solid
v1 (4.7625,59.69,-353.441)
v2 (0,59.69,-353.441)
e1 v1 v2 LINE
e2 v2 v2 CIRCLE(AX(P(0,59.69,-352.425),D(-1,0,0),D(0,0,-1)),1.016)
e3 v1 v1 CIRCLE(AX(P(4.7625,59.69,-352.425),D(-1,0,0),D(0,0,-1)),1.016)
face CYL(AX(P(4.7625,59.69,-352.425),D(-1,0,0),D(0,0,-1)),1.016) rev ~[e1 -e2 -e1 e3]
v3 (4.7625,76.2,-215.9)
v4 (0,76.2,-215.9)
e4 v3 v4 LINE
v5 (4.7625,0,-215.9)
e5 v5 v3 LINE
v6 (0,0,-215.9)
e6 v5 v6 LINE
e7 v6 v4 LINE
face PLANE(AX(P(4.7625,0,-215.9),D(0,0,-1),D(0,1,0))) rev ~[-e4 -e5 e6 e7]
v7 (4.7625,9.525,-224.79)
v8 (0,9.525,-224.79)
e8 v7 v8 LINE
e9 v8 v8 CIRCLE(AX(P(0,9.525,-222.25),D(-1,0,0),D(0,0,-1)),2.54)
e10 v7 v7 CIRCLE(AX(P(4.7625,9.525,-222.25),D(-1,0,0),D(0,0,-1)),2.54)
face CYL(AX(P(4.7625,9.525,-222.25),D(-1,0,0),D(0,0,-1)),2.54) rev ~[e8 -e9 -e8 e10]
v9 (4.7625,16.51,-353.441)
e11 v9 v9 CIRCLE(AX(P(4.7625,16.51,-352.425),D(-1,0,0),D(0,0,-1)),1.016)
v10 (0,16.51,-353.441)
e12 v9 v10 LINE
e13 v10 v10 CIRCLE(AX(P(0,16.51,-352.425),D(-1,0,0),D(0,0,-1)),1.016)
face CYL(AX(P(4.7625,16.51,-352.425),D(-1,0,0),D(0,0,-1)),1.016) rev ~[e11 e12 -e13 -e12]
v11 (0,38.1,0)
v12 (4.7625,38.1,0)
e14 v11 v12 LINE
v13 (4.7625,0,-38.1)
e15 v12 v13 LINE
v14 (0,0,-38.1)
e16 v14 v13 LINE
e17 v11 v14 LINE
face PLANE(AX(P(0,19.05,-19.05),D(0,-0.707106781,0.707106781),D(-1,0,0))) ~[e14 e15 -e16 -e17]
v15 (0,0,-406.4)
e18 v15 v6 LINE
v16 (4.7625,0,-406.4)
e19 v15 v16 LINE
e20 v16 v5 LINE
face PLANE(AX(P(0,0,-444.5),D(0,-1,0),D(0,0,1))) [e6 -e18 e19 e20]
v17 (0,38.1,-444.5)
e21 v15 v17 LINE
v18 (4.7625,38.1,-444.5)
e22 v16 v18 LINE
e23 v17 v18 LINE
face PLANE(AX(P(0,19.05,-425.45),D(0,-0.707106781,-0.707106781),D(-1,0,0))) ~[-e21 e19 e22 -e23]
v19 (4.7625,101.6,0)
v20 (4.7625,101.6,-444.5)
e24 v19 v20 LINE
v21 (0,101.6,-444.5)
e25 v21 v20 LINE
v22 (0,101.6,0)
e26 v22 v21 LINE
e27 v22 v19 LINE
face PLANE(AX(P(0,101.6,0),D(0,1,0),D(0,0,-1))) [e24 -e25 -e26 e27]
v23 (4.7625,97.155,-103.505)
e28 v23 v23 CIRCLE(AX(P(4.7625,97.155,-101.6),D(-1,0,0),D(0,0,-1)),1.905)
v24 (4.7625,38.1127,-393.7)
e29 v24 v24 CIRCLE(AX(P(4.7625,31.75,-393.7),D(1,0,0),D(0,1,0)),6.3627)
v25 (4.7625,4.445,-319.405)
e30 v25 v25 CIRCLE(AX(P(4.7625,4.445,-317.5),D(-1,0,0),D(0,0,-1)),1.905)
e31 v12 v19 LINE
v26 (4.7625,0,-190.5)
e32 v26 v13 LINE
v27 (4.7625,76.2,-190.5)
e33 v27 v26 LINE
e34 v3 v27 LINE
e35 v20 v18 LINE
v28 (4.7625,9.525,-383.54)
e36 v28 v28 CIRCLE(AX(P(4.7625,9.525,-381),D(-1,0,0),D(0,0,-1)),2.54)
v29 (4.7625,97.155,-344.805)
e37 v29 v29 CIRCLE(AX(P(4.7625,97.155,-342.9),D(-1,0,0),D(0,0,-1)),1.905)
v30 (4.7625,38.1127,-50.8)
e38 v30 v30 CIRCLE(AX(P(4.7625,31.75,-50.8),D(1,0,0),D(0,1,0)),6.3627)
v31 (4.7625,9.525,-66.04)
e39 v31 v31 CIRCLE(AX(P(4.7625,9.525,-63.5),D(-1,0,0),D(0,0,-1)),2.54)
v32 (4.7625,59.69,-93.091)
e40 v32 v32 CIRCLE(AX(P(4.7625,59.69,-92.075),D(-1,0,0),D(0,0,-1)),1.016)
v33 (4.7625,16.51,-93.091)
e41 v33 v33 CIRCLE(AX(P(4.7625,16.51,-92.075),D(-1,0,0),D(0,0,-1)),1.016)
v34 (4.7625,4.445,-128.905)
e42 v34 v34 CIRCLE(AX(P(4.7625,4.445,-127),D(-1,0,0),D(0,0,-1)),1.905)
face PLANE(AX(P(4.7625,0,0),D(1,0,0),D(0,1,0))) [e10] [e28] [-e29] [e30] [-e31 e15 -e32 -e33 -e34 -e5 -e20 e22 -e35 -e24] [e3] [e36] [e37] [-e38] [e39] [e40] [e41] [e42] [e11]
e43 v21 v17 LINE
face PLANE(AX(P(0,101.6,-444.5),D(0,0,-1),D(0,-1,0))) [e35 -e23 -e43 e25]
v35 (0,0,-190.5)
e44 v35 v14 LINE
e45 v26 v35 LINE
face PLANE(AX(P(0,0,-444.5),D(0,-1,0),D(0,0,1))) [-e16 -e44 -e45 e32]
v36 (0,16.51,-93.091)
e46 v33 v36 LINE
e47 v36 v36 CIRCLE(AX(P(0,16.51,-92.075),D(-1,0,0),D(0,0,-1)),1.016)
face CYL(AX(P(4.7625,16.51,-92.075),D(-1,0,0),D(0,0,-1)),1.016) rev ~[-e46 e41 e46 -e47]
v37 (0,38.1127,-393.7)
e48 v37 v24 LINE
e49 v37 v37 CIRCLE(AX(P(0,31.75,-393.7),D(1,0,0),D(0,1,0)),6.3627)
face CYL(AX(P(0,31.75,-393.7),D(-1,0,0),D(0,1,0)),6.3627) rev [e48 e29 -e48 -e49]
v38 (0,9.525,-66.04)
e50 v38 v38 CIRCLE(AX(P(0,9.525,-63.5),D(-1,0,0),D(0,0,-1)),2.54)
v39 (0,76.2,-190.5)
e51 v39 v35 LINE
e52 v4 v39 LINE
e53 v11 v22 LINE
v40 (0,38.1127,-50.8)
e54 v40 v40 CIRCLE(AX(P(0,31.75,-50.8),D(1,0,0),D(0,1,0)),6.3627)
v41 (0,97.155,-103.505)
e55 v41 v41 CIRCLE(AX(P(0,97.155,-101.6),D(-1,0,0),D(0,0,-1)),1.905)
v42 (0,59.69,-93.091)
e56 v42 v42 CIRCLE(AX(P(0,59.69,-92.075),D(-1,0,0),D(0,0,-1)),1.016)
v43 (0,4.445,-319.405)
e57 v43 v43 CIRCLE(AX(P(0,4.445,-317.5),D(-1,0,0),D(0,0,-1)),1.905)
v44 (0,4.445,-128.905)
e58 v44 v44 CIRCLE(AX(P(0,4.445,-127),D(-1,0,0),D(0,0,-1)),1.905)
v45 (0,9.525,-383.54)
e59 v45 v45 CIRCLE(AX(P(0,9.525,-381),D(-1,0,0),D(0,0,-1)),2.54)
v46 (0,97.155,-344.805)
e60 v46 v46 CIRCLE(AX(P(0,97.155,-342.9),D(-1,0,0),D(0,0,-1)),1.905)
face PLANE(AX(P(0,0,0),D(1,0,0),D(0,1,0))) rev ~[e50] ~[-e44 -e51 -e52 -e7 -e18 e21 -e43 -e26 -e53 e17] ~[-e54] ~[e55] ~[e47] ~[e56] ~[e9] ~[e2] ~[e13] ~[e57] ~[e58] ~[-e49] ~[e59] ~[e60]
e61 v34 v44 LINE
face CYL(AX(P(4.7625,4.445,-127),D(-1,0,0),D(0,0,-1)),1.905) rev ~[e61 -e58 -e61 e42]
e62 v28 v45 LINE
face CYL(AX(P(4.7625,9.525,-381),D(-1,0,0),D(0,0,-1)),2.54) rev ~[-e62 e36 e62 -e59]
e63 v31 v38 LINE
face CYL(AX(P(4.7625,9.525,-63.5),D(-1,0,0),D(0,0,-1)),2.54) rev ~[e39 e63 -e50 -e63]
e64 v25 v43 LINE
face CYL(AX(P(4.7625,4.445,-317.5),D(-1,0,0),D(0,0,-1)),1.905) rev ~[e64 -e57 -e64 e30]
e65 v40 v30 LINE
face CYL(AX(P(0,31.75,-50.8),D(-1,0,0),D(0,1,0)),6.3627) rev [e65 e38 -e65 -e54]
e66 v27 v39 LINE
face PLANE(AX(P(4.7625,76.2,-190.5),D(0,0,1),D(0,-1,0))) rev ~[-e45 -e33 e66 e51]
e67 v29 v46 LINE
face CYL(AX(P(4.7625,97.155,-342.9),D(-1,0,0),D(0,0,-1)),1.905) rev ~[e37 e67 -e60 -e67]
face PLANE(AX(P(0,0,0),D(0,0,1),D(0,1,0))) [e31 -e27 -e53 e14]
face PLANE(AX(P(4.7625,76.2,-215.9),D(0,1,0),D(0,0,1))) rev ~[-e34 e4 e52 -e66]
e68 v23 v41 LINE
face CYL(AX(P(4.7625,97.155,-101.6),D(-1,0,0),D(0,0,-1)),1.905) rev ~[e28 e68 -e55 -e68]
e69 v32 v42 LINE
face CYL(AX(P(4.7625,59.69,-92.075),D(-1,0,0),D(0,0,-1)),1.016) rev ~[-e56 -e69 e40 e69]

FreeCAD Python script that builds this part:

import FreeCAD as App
import Part
import Sketcher
Q = App.Units.Quantity


def edges_at(feature, points):
    """Names of the edges that pass closest to the given points."""
    edges = feature.Shape.Edges
    near = lambda p: min(range(len(edges)), key=lambda i: edges[i].distToShape(Part.Vertex(*p))[0])
    return sorted({f"Edge{near(p) + 1}" for p in points})

doc = App.newDocument("Part")
params = doc.addObject("Spreadsheet::Sheet", "Params")
for row, (alias, value) in enumerate([
    ("sketch1_width", "4 in"),
    ("sketch1_diameter", "0.501 in"),
    ("sketch1_height", "17.5 in"),
    ("pad1_length", "0.1875 in"),
    ("chamfer_size", "1.5 in"),
    ("chamfer2_size", "1.5 in"),
    ("sketch2_diameter", "0.08 in"),
    ("hole_diameter", "0.08 in"),
    ("sketch3_diameter", "0.15 in"),
    ("hole2_diameter", "0.15 in"),
    ("hole2_depth", "1 in"),
    ("sketch4_width", "3 in"),
    ("sketch4_height", "1 in"),
    ("sketch5_diameter", "0.2 in"),
    ("hole3_diameter", "0.2 in"),
    ("hole3_depth", "0.75 in"),
], start=1):
    params.set(f"A{row}", alias)
    params.set(f"B{row}", "=" + value)
    params.setAlias(f"B{row}", alias)

body = doc.addObject("PartDesign::Body", "Body")

# Sketch on YZ plane
sketch1 = doc.addObject("Sketcher::SketchObject", "Sketch")
body.addObject(sketch1)
sketch1.AttachmentSupport = (doc.YZ_Plane, [""])
sketch1.MapMode = "FlatFace"
sketch1.addGeometry([
    Part.LineSegment(App.Vector(102, 0, 0), App.Vector(0, 0, 0)),  # 0
    Part.LineSegment(App.Vector(0, 0, 0), App.Vector(0, -444, 0)),  # 1
    Part.LineSegment(App.Vector(0, -444, 0), App.Vector(102, -444, 0)),  # 2
    Part.LineSegment(App.Vector(102, -444, 0), App.Vector(102, 0, 0)),  # 3
    Part.Circle(App.Vector(32, -394, 0), App.Vector(0, 0, 1), 6),  # 4
    Part.Circle(App.Vector(32, -51, 0), App.Vector(0, 0, 1), 6),  # 5
], False)
sketch1.addConstraint([
    Sketcher.Constraint("Coincident", 0, 2, 1, 1),
    Sketcher.Constraint("Coincident", 1, 2, 2, 1),
    Sketcher.Constraint("Coincident", 2, 2, 3, 1),
    Sketcher.Constraint("Coincident", 3, 2, 0, 1),
    Sketcher.Constraint("Horizontal", 0),
    Sketcher.Constraint("Vertical", 1),
    Sketcher.Constraint("Horizontal", 2),
    Sketcher.Constraint("Vertical", 3),
    Sketcher.Constraint("Coincident", 0, 2, -1, 1),
    Sketcher.Constraint("Equal", 4, 5),
    Sketcher.Constraint("Vertical", 4, 3, 5, 3),
    Sketcher.Constraint("DistanceX", 0, 2, 0, 1, Q("4 in")),
    Sketcher.Constraint("Diameter", 4, Q("0.501 in")),
    Sketcher.Constraint("DistanceY", 1, 2, 1, 1, Q("17.5 in")),
    Sketcher.Constraint("DistanceY", 5, 3, -1, 1, Q("2 in")),
    Sketcher.Constraint("DistanceY", 1, 2, 4, 3, Q("2 in")),
    Sketcher.Constraint("DistanceX", -1, 1, 4, 3, Q("1.25 in")),
])
sketch1.setExpression("Constraints[11]", "Params.sketch1_width")
sketch1.setExpression("Constraints[12]", "Params.sketch1_diameter")
sketch1.setExpression("Constraints[13]", "Params.sketch1_height")
pad1 = doc.addObject("PartDesign::Pad", "Pad")
body.addObject(pad1)
pad1.Profile = sketch1
pad1.setExpression("Length", "Params.pad1_length")
doc.recompute()

chamfer = doc.addObject("PartDesign::Chamfer", "Chamfer")
body.addObject(chamfer)
chamfer.Base = (pad1, edges_at(pad1, [(2.381, 0, 0)]))
chamfer.setExpression("Size", "Params.chamfer_size")
doc.recompute()

chamfer2 = doc.addObject("PartDesign::Chamfer", "Chamfer001")
body.addObject(chamfer2)
chamfer2.Base = (chamfer, edges_at(chamfer, [(2.381, 0, -444.5)]))
chamfer2.setExpression("Size", "Params.chamfer2_size")

# Sketch on YZ plane
sketch2 = doc.addObject("Sketcher::SketchObject", "Sketch001")
body.addObject(sketch2)
sketch2.AttachmentSupport = (doc.YZ_Plane, [""])
sketch2.MapMode = "FlatFace"
sketch2.AttachmentOffset = App.Placement(App.Vector(0, 0, 0.1875 * 25.4), App.Rotation())
sketch2.addGeometry([
    Part.Circle(App.Vector(59.7, -92.1, 0), App.Vector(0, 0, 1), 1),
    Part.Circle(App.Vector(16.5, -92.1, 0), App.Vector(0, 0, 1), 1),
    Part.Circle(App.Vector(59.7, -352.4, 0), App.Vector(0, 0, 1), 1),
    Part.Circle(App.Vector(16.5, -352.4, 0), App.Vector(0, 0, 1), 1),
], False)
sketch2.addConstraint([
    Sketcher.Constraint("Equal", 0, 1),
    Sketcher.Constraint("Equal", 1, 2),
    Sketcher.Constraint("Equal", 2, 3),
    Sketcher.Constraint("Horizontal", 0, 3, 1, 3),
    Sketcher.Constraint("Horizontal", 2, 3, 3, 3),
    Sketcher.Constraint("Vertical", 0, 3, 2, 3),
    Sketcher.Constraint("Vertical", 1, 3, 3, 3),
    Sketcher.Constraint("Diameter", 0, Q("0.08 in")),
    Sketcher.Constraint("DistanceX", 1, 3, 0, 3, Q("1.7 in")),
    Sketcher.Constraint("DistanceX", -1, 1, 0, 3, Q("2.35 in")),
    Sketcher.Constraint("DistanceY", 2, 3, 0, 3, Q("10.25 in")),
    Sketcher.Constraint("DistanceY", 0, 3, -1, 1, Q("3.625 in")),
])
sketch2.setExpression("Constraints[7]", "Params.sketch2_diameter")
doc.recompute()
hole = doc.addObject("PartDesign::Hole", "Hole")
body.addObject(hole)
hole.Profile = sketch2
hole.ThreadType = "None"
hole.setExpression("Diameter", "Params.hole_diameter")
hole.DepthType = "ThroughAll"

# Sketch on YZ plane
sketch3 = doc.addObject("Sketcher::SketchObject", "Sketch002")
body.addObject(sketch3)
sketch3.AttachmentSupport = (doc.YZ_Plane, [""])
sketch3.MapMode = "FlatFace"
sketch3.AttachmentOffset = App.Placement(App.Vector(0, 0, 0.1875 * 25.4), App.Rotation())
sketch3.addGeometry([
    Part.Circle(App.Vector(97.2, -101.6, 0), App.Vector(0, 0, 1), 1.9),
    Part.Circle(App.Vector(97.2, -342.9, 0), App.Vector(0, 0, 1), 1.9),
    Part.Circle(App.Vector(4.4, -127, 0), App.Vector(0, 0, 1), 1.9),
    Part.Circle(App.Vector(4.4, -317.5, 0), App.Vector(0, 0, 1), 1.9),
], False)
sketch3.addConstraint([
    Sketcher.Constraint("Equal", 0, 1),
    Sketcher.Constraint("Equal", 1, 2),
    Sketcher.Constraint("Equal", 2, 3),
    Sketcher.Constraint("Vertical", 0, 3, 1, 3),
    Sketcher.Constraint("Vertical", 2, 3, 3, 3),
    Sketcher.Constraint("Diameter", 0, Q("0.15 in")),
    Sketcher.Constraint("DistanceY", 0, 3, -1, 1, Q("4 in")),
    Sketcher.Constraint("DistanceY", 2, 3, -1, 1, Q("5 in")),
    Sketcher.Constraint("DistanceY", 1, 3, 3, 3, Q("1 in")),
    Sketcher.Constraint("DistanceY", 1, 3, -1, 1, Q("13.5 in")),
    Sketcher.Constraint("DistanceX", 2, 3, 0, 3, Q("3.65 in")),
    Sketcher.Constraint("DistanceX", -1, 1, 0, 3, Q("3.825 in")),
])
sketch3.setExpression("Constraints[5]", "Params.sketch3_diameter")
doc.recompute()
hole2 = doc.addObject("PartDesign::Hole", "Hole001")
body.addObject(hole2)
hole2.Profile = sketch3
hole2.ThreadType = "None"
hole2.setExpression("Diameter", "Params.hole2_diameter")
hole2.DepthType = "Dimension"
hole2.setExpression("Depth", "Params.hole2_depth")
hole2.DrillPoint = "Angled"
hole2.DrillPointAngle = 118

# Sketch on YZ plane
sketch4 = doc.addObject("Sketcher::SketchObject", "Sketch003")
body.addObject(sketch4)
sketch4.AttachmentSupport = (doc.YZ_Plane, [""])
sketch4.MapMode = "FlatFace"
sketch4.AttachmentOffset = App.Placement(App.Vector(0, 0, 0.1875 * 25.4), App.Rotation())
sketch4.addGeometry([
    Part.LineSegment(App.Vector(0, -190, 0), App.Vector(0, -216, 0)),
    Part.LineSegment(App.Vector(0, -216, 0), App.Vector(76, -216, 0)),
    Part.LineSegment(App.Vector(76, -216, 0), App.Vector(76, -190, 0)),
    Part.LineSegment(App.Vector(76, -190, 0), App.Vector(0, -190, 0)),
], False)
sketch4.addConstraint([
    Sketcher.Constraint("Coincident", 0, 2, 1, 1),
    Sketcher.Constraint("Coincident", 1, 2, 2, 1),
    Sketcher.Constraint("Coincident", 2, 2, 3, 1),
    Sketcher.Constraint("Coincident", 3, 2, 0, 1),
    Sketcher.Constraint("Vertical", 0),
    Sketcher.Constraint("Horizontal", 1),
    Sketcher.Constraint("Vertical", 2),
    Sketcher.Constraint("Horizontal", 3),
    Sketcher.Constraint("PointOnObject", 0, 2, -2),
    Sketcher.Constraint("DistanceX", 1, 1, 1, 2, Q("3 in")),
    Sketcher.Constraint("DistanceY", 0, 2, 0, 1, Q("1 in")),
    Sketcher.Constraint("DistanceY", 2, 2, -1, 1, Q("7.5 in")),
])
sketch4.setExpression("Constraints[9]", "Params.sketch4_width")
sketch4.setExpression("Constraints[10]", "Params.sketch4_height")
pocket1 = doc.addObject("PartDesign::Pocket", "Pocket")
body.addObject(pocket1)
pocket1.Profile = sketch4
pocket1.Type = "ThroughAll"

# Sketch on YZ plane
sketch5 = doc.addObject("Sketcher::SketchObject", "Sketch004")
body.addObject(sketch5)
sketch5.AttachmentSupport = (doc.YZ_Plane, [""])
sketch5.MapMode = "FlatFace"
sketch5.AttachmentOffset = App.Placement(App.Vector(0, 0, 0.1875 * 25.4), App.Rotation())
sketch5.addGeometry([
    Part.Circle(App.Vector(9.5, -63.5, 0), App.Vector(0, 0, 1), 2.5),
    Part.Circle(App.Vector(9.5, -222.2, 0), App.Vector(0, 0, 1), 2.5),
    Part.Circle(App.Vector(9.5, -381, 0), App.Vector(0, 0, 1), 2.5),
], False)
sketch5.addConstraint([
    Sketcher.Constraint("Equal", 0, 1),
    Sketcher.Constraint("Equal", 1, 2),
    Sketcher.Constraint("Vertical", 0, 3, 1, 3),
    Sketcher.Constraint("Vertical", 1, 3, 2, 3),
    Sketcher.Constraint("Diameter", 0, Q("0.2 in")),
    Sketcher.Constraint("DistanceY", 2, 3, -1, 1, Q("15 in")),
    Sketcher.Constraint("DistanceY", 0, 3, -1, 1, Q("2.5 in")),
    Sketcher.Constraint("DistanceY", 1, 3, -1, 1, Q("8.75 in")),
    Sketcher.Constraint("DistanceX", -1, 1, 0, 3, Q("0.375 in")),
])
sketch5.setExpression("Constraints[4]", "Params.sketch5_diameter")
doc.recompute()
hole3 = doc.addObject("PartDesign::Hole", "Hole002")
body.addObject(hole3)
hole3.Profile = sketch5
hole3.ThreadType = "None"
hole3.setExpression("Diameter", "Params.hole3_diameter")
hole3.DepthType = "Dimension"
hole3.setExpression("Depth", "Params.hole3_depth")
hole3.DrillPoint = "Angled"
hole3.DrillPointAngle = 118

doc.recompute()
